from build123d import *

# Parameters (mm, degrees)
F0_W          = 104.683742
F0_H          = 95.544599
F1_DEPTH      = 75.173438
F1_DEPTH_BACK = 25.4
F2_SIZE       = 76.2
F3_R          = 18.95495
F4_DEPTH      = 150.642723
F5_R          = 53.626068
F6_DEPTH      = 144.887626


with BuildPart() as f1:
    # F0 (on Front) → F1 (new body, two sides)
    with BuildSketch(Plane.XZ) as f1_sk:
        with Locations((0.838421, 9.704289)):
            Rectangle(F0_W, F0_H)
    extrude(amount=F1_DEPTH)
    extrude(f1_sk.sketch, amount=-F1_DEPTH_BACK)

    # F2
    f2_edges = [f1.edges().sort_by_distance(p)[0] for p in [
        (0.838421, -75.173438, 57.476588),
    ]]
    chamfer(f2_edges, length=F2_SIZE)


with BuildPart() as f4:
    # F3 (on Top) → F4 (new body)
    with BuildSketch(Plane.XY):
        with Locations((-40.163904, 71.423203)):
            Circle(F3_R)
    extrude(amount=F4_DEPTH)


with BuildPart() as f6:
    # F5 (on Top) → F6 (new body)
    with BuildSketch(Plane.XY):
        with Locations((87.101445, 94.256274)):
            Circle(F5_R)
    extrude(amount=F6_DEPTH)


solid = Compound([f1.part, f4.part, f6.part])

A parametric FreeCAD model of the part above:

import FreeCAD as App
import Part
import Sketcher
Q = App.Units.Quantity


def edges_at(feature, points):
    """Names of the edges that pass closest to the given points."""
    edges = feature.Shape.Edges
    near = lambda p: min(range(len(edges)), key=lambda i: edges[i].distToShape(Part.Vertex(*p))[0])
    return sorted({f"Edge{near(p) + 1}" for p in points})


def add_polygon(sketch, points):
    """Adds a closed chain of lines whose ends are joined by coincident constraints."""
    first, n = sketch.GeometryCount, len(points)
    for a, b in zip(points, points[1:] + points[:1]):
        sketch.addGeometry(Part.LineSegment(App.Vector(*a, 0), App.Vector(*b, 0)), False)
    for i in range(n):
        sketch.addConstraint(Sketcher.Constraint("Coincident", first + i, 2, first + (i + 1) % n, 1))

doc = App.newDocument("Part")
body = doc.addObject("PartDesign::Body", "Body")

# Sketch on XZ plane
sketch1 = doc.addObject("Sketcher::SketchObject", "Sketch")
body.addObject(sketch1)
sketch1.AttachmentSupport = (doc.XZ_Plane, [""])
sketch1.MapMode = "FlatFace"
add_polygon(sketch1, [(-51.50345, 57.476588), (-51.50345, -38.06801), (53.180292, -38.06801), (53.180292, 57.476588)])  # lines 0-3
sketch1.addConstraint([
    Sketcher.Constraint("Vertical", 0),
    Sketcher.Constraint("Horizontal", 1),
    Sketcher.Constraint("Vertical", 2),
    Sketcher.Constraint("Horizontal", 3),
    Sketcher.Constraint("DistanceY", 0, 2, 0, 1, Q("95.544599 mm")),
    Sketcher.Constraint("DistanceX", 1, 1, 1, 2, Q("104.683742 mm")),
    Sketcher.Constraint("DistanceX", 0, 2, -1, 1, Q("51.50345 mm")),
    Sketcher.Constraint("DistanceY", 0, 2, -1, 1, Q("38.06801 mm")),
])
pad1 = doc.addObject("PartDesign::Pad", "Pad")
body.addObject(pad1)
pad1.Profile = sketch1
pad1.Type = "TwoLengths"
pad1.Length = 75.173438
pad1.Length2 = Q("1 in")
doc.recompute()

chamfer = doc.addObject("PartDesign::Chamfer", "Chamfer")
body.addObject(chamfer)
chamfer.Base = (pad1, edges_at(pad1, [(0.838, -75.173, 57.477)]))
chamfer.Size = Q("3 in")
body2 = doc.addObject("PartDesign::Body", "Body001")

# Sketch on XY plane
sketch2 = doc.addObject("Sketcher::SketchObject", "Sketch001")
body2.addObject(sketch2)
sketch2.AttachmentSupport = (doc.getObject("XY_Plane001"), [""])
sketch2.MapMode = "FlatFace"
sketch2.addGeometry(Part.Circle(App.Vector(-40.163904, 71.423203, 0), App.Vector(0, 0, 1), 18.95495), False)
sketch2.addConstraint([
    Sketcher.Constraint("Diameter", 0, Q("37.9099 mm")),
    Sketcher.Constraint("DistanceX", 0, 3, -1, 1, Q("40.163904 mm")),
    Sketcher.Constraint("DistanceY", -1, 1, 0, 3, Q("71.423203 mm")),
])
pad2 = doc.addObject("PartDesign::Pad", "Pad001")
body2.addObject(pad2)
pad2.Profile = sketch2
pad2.Length = 150.642723
body3 = doc.addObject("PartDesign::Body", "Body002")

# Sketch on XY plane
sketch3 = doc.addObject("Sketcher::SketchObject", "Sketch002")
body3.addObject(sketch3)
sketch3.AttachmentSupport = (doc.getObject("XY_Plane002"), [""])
sketch3.MapMode = "FlatFace"
sketch3.addGeometry(Part.Circle(App.Vector(87.101445, 94.256274, 0), App.Vector(0, 0, 1), 53.626068), False)
sketch3.addConstraint([
    Sketcher.Constraint("Diameter", 0, Q("107.252136 mm")),
    Sketcher.Constraint("DistanceX", -1, 1, 0, 3, Q("87.101445 mm")),
    Sketcher.Constraint("DistanceY", -1, 1, 0, 3, Q("94.256274 mm")),
])
pad3 = doc.addObject("PartDesign::Pad", "Pad002")
body3.addObject(pad3)
pad3.Profile = sketch3
pad3.Length = 144.887626

doc.recompute()
